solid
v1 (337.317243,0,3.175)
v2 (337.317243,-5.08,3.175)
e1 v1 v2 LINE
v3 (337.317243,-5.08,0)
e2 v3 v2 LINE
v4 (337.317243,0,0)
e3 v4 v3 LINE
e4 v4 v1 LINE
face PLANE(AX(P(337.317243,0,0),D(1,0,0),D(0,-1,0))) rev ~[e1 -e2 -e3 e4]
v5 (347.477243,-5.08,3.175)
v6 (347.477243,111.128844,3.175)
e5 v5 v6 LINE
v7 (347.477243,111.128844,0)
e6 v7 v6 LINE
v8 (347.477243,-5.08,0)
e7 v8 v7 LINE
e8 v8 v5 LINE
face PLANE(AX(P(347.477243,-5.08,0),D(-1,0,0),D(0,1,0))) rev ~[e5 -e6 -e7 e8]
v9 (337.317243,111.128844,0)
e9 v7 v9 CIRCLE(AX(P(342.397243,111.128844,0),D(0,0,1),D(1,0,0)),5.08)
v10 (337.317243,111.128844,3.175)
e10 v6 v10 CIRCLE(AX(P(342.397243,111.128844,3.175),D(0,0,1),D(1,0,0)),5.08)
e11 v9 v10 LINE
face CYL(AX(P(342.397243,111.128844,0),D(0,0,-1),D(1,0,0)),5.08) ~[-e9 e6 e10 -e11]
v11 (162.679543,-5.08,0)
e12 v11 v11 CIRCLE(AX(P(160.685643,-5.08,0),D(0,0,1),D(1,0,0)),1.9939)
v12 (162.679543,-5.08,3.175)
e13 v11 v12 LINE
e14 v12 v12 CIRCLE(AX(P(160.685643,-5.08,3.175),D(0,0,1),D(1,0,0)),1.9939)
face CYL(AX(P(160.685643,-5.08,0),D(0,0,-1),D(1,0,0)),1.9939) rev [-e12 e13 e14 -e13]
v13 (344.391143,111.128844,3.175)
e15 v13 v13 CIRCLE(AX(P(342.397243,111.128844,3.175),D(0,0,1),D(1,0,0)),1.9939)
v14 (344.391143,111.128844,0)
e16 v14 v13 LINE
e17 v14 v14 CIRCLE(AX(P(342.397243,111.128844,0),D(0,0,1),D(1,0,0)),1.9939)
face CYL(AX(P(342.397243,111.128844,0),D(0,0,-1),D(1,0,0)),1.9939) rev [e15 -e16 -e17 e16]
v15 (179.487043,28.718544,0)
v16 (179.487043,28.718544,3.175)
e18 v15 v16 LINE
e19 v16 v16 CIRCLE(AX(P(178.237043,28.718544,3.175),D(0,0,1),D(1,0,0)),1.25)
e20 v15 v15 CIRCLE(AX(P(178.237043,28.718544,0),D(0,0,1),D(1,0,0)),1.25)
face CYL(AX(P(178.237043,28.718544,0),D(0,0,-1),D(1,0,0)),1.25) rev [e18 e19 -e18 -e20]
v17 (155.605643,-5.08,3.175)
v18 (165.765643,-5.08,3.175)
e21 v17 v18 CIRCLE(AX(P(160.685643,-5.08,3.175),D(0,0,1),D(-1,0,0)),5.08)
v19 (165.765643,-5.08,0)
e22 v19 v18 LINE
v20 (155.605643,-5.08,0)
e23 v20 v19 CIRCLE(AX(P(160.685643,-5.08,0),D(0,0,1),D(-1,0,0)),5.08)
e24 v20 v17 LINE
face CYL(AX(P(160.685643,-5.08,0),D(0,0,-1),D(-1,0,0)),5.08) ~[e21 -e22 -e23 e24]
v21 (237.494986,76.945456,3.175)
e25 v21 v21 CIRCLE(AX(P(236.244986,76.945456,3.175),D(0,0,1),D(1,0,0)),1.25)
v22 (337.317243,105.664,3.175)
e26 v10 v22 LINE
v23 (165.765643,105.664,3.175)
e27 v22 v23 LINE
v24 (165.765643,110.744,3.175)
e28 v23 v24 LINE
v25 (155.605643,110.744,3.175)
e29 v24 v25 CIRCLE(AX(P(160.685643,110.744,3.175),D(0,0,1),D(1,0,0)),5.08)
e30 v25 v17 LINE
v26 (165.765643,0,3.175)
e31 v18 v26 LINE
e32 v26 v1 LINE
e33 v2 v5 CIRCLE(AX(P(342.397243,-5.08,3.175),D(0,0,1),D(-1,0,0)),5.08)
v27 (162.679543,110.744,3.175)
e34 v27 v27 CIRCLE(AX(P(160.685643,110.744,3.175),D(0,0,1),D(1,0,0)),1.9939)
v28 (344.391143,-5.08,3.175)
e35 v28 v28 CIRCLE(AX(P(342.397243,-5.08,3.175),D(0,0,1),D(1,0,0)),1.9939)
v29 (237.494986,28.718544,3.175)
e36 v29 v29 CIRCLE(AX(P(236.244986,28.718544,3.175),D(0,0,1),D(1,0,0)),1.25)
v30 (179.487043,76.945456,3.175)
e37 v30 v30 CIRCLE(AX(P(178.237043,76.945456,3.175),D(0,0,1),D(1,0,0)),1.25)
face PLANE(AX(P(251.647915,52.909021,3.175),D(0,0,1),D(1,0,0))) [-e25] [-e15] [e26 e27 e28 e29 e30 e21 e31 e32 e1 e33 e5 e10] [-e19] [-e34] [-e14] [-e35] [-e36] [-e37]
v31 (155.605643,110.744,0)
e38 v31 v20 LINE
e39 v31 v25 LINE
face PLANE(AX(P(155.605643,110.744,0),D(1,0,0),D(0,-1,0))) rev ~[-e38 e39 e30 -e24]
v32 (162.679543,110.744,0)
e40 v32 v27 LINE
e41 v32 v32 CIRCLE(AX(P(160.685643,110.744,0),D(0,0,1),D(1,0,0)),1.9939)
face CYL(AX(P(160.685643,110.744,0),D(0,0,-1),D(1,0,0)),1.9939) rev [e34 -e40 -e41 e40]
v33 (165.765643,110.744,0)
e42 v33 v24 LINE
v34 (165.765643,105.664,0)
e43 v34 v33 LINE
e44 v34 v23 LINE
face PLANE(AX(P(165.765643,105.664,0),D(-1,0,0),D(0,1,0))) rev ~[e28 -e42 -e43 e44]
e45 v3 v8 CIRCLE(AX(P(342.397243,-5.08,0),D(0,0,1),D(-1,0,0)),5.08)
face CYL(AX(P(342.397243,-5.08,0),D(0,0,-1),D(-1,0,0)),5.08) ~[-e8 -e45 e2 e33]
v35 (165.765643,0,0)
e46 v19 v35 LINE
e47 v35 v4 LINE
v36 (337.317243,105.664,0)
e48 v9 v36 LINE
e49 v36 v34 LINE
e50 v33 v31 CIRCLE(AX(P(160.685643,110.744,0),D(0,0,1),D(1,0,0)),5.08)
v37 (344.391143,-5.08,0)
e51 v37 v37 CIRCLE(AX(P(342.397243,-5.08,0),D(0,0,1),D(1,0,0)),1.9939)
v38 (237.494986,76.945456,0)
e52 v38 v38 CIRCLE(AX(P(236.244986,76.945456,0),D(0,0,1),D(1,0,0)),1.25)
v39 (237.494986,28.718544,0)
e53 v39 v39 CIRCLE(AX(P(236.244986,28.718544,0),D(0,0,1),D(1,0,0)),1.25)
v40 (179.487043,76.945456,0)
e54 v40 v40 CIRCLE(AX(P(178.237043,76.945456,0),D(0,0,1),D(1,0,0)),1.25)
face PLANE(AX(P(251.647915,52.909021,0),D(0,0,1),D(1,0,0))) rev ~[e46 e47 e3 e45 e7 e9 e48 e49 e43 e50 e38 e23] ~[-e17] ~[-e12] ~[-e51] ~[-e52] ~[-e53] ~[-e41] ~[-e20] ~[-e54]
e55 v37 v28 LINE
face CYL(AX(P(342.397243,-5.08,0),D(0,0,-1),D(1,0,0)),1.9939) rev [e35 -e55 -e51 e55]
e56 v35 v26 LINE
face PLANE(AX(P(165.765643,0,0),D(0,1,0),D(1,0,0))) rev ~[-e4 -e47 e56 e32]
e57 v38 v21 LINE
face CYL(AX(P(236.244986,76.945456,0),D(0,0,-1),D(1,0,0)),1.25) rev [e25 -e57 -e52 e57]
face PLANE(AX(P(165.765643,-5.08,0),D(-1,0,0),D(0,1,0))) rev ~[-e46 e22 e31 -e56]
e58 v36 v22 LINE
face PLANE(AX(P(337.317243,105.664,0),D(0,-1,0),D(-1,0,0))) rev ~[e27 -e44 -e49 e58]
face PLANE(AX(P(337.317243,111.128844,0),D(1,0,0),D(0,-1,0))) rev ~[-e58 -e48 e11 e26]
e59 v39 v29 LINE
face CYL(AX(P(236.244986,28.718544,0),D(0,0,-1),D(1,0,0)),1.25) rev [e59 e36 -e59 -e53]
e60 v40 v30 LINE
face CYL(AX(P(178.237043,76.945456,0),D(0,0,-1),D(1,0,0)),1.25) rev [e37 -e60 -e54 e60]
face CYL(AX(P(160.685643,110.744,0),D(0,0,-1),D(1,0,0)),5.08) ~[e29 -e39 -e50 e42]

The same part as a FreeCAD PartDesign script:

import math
import FreeCAD as App
import Part
import Sketcher
from FreeCAD import Vector
Q = App.Units.Quantity

doc = App.newDocument("Part")
body = doc.addObject("PartDesign::Body", "Body")

# Sketch on XY plane
sketch1 = body.newObject("Sketcher::SketchObject", "Sketch")
sketch1.AttachmentSupport = (doc.getObject("XY_Plane"), [""])
sketch1.MapMode = "FlatFace"
sketch1.addGeometry(Part.LineSegment(Vector(337.3, 105.7, 0), Vector(165.8, 105.7, 0)), False)
sketch1.addGeometry(Part.LineSegment(Vector(165.8, 105.7, 0), Vector(165.8, 110.7, 0)), False)
sketch1.addGeometry(Part.ArcOfCircle(Part.Circle(Vector(160.7, 110.7, 0), Vector(0, 0, 1), 5.1), math.radians(0), math.radians(180)), False)
sketch1.addGeometry(Part.LineSegment(Vector(155.6, 110.7, 0), Vector(155.6, -5.1, 0)), False)
sketch1.addGeometry(Part.ArcOfCircle(Part.Circle(Vector(160.7, -5.1, 0), Vector(0, 0, 1), 5.1), math.radians(180), math.radians(360)), False)
sketch1.addGeometry(Part.LineSegment(Vector(165.8, -5.1, 0), Vector(165.8, 0, 0)), False)
sketch1.addGeometry(Part.LineSegment(Vector(165.8, 0, 0), Vector(337.3, 0, 0)), False)
sketch1.addGeometry(Part.LineSegment(Vector(337.3, 0, 0), Vector(337.3, -5.1, 0)), False)
sketch1.addGeometry(Part.ArcOfCircle(Part.Circle(Vector(342.4, -5.1, 0), Vector(0, 0, 1), 5.1), math.radians(180), math.radians(360)), False)
sketch1.addGeometry(Part.LineSegment(Vector(347.5, -5.1, 0), Vector(347.5, 111.1, 0)), False)
sketch1.addGeometry(Part.ArcOfCircle(Part.Circle(Vector(342.4, 111.1, 0), Vector(0, 0, 1), 5.1), math.radians(0), math.radians(180)), False)
sketch1.addGeometry(Part.LineSegment(Vector(337.3, 111.1, 0), Vector(337.3, 105.7, 0)), False)
sketch1.addGeometry(Part.Circle(Vector(160.7, -5.1, 0), Vector(0, 0, 1), 2), False)
sketch1.addGeometry(Part.Circle(Vector(178.2, 28.7, 0), Vector(0, 0, 1), 1.2), False)
sketch1.addGeometry(Part.Circle(Vector(236.2, 28.7, 0), Vector(0, 0, 1), 1.2), False)
sketch1.addGeometry(Part.Circle(Vector(342.4, -5.1, 0), Vector(0, 0, 1), 2), False)
sketch1.addGeometry(Part.Circle(Vector(178.2, 76.9, 0), Vector(0, 0, 1), 1.2), False)
sketch1.addGeometry(Part.Circle(Vector(236.2, 76.9, 0), Vector(0, 0, 1), 1.2), False)
sketch1.addGeometry(Part.Circle(Vector(160.7, 110.7, 0), Vector(0, 0, 1), 2), False)
sketch1.addGeometry(Part.Circle(Vector(342.4, 111.1, 0), Vector(0, 0, 1), 2), False)
sketch1.addConstraint(Sketcher.Constraint("Coincident", 0, 2, 1, 1))
sketch1.addConstraint(Sketcher.Constraint("Tangent", 1, 2, 2, 1))
sketch1.addConstraint(Sketcher.Constraint("Tangent", 2, 2, 3, 1))
sketch1.addConstraint(Sketcher.Constraint("Tangent", 3, 2, 4, 1))
sketch1.addConstraint(Sketcher.Constraint("Tangent", 4, 2, 5, 1))
sketch1.addConstraint(Sketcher.Constraint("Coincident", 5, 2, 6, 1))
sketch1.addConstraint(Sketcher.Constraint("Coincident", 6, 2, 7, 1))
sketch1.addConstraint(Sketcher.Constraint("Tangent", 7, 2, 8, 1))
sketch1.addConstraint(Sketcher.Constraint("Tangent", 8, 2, 9, 1))
sketch1.addConstraint(Sketcher.Constraint("Tangent", 9, 2, 10, 1))
sketch1.addConstraint(Sketcher.Constraint("Tangent", 10, 2, 11, 1))
sketch1.addConstraint(Sketcher.Constraint("Coincident", 11, 2, 0, 1))
sketch1.addConstraint(Sketcher.Constraint("Horizontal", 0))
sketch1.addConstraint(Sketcher.Constraint("Vertical", 1))
sketch1.addConstraint(Sketcher.Constraint("Vertical", 3))
sketch1.addConstraint(Sketcher.Constraint("Vertical", 5))
sketch1.addConstraint(Sketcher.Constraint("Horizontal", 6))
sketch1.addConstraint(Sketcher.Constraint("Vertical", 7))
sketch1.addConstraint(Sketcher.Constraint("Vertical", 9))
sketch1.addConstraint(Sketcher.Constraint("Vertical", 11))
sketch1.addConstraint(Sketcher.Constraint("Coincident", 12, 3, 4, 3))
sketch1.addConstraint(Sketcher.Constraint("Coincident", 15, 3, 8, 3))
sketch1.addConstraint(Sketcher.Constraint("Coincident", 18, 3, 2, 3))
sketch1.addConstraint(Sketcher.Constraint("Coincident", 19, 3, 10, 3))
sketch1.addConstraint(Sketcher.Constraint("Equal", 2, 4))
sketch1.addConstraint(Sketcher.Constraint("Equal", 4, 8))
sketch1.addConstraint(Sketcher.Constraint("Equal", 8, 10))
sketch1.addConstraint(Sketcher.Constraint("Equal", 13, 14))
sketch1.addConstraint(Sketcher.Constraint("Equal", 12, 15))
sketch1.addConstraint(Sketcher.Constraint("Equal", 14, 16))
sketch1.addConstraint(Sketcher.Constraint("Equal", 16, 17))
sketch1.addConstraint(Sketcher.Constraint("Equal", 15, 18))
sketch1.addConstraint(Sketcher.Constraint("Equal", 18, 19))
sketch1.addConstraint(Sketcher.Constraint("PointOnObject", 5, 2, -1))
sketch1.addConstraint(Sketcher.Constraint("Horizontal", 4, 3, 8, 3))
sketch1.addConstraint(Sketcher.Constraint("Horizontal", 13, 3, 14, 3))
sketch1.addConstraint(Sketcher.Constraint("Horizontal", 16, 3, 17, 3))
sketch1.addConstraint(Sketcher.Constraint("Vertical", 13, 3, 16, 3))
sketch1.addConstraint(Sketcher.Constraint("Vertical", 14, 3, 17, 3))
sketch1.addConstraint(Sketcher.Constraint("Equal", 1, 5))
sketch1.addConstraint(Sketcher.Constraint("Radius", 2, Q("0.2 in")))
sketch1.addConstraint(Sketcher.Constraint("Diameter", 12, Q("0.157 in")))
sketch1.addConstraint(Sketcher.Constraint("DistanceY", 1, 1, 1, 2, Q("0.2 in")))
sketch1.addConstraint(Sketcher.Constraint("DistanceY", 3, 2, 3, 1, Q("4.56 in")))
sketch1.addConstraint(Sketcher.Constraint("Diameter", 13, 2.5))
sketch1.addConstraint(Sketcher.Constraint("DistanceX", 0, 2, 0, 1, Q("6.754 in")))
sketch1.addConstraint(Sketcher.Constraint("DistanceX", 4, 3, 13, 3, Q("0.691 in")))
sketch1.addConstraint(Sketcher.Constraint("DistanceY", 13, 3, 10, 3, Q("3.2445 in")))
sketch1.addConstraint(Sketcher.Constraint("DistanceY", 9, 1, 9, 2, 116.208844))
sketch1.addConstraint(Sketcher.Constraint("DistanceY", 13, 3, 16, 3, 48.226912))
sketch1.addConstraint(Sketcher.Constraint("DistanceX", -1, 1, 2, 3, 160.685643))
sketch1.addConstraint(Sketcher.Constraint("DistanceX", -1, 1, 14, 3, 236.244986))
pad1 = body.newObject("PartDesign::Pad", "Pad")
pad1.Profile = sketch1
pad1.Length = Q("0.125 in")

doc.recompute()
